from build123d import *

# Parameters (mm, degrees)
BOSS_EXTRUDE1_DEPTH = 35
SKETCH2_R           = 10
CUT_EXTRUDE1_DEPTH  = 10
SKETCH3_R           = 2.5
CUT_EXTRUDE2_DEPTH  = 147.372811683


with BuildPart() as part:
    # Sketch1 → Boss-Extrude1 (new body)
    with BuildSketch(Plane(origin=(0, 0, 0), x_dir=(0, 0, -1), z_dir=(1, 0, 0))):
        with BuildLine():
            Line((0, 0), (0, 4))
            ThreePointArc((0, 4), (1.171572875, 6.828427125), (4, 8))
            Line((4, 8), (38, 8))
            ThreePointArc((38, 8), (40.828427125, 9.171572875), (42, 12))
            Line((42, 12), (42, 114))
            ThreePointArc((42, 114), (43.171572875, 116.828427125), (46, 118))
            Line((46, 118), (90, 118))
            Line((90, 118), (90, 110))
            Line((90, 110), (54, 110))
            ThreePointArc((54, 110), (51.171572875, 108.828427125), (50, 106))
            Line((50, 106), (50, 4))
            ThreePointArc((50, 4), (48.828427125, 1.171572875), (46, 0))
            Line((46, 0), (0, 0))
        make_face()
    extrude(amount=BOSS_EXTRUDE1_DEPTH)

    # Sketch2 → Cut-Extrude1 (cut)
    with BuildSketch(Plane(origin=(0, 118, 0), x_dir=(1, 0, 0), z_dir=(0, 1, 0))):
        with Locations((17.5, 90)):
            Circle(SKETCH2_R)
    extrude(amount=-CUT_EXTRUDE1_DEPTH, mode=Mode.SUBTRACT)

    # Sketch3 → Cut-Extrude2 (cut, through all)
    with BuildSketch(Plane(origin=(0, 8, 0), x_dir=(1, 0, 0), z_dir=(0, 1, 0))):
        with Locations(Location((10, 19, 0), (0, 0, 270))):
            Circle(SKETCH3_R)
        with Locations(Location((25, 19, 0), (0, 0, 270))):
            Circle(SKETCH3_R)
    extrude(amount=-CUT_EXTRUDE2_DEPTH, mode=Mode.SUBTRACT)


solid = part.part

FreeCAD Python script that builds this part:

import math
import FreeCAD as App
import Part
import Sketcher

V = App.Vector

doc = App.newDocument("Part")
body = doc.addObject("PartDesign::Body", "Body")

# Sketch on YZ plane
sketch1 = doc.addObject("Sketcher::SketchObject", "Sketch")
body.addObject(sketch1)
sketch1.AttachmentSupport = (doc.YZ_Plane, [""])
sketch1.MapMode = "FlatFace"
sketch1.addGeometry([
    Part.LineSegment(V(4, 0, 0), V(0, 0, 0)),  # 0
    Part.LineSegment(V(0, 0, 0), V(0, -46, 0)),  # 1
    Part.ArcOfCircle(Part.Circle(V(4, -46, 0), V(0, 0, 1), 4), math.radians(180), math.radians(270)),  # 2
    Part.LineSegment(V(4, -50, 0), V(106, -50, 0)),  # 3
    Part.ArcOfCircle(Part.Circle(V(106, -54, 0), V(0, 0, 1), 4), math.radians(0), math.radians(90)),  # 4
    Part.LineSegment(V(110, -54, 0), V(110, -90, 0)),  # 5
    Part.LineSegment(V(110, -90, 0), V(118, -90, 0)),  # 6
    Part.LineSegment(V(118, -90, 0), V(118, -46, 0)),  # 7
    Part.ArcOfCircle(Part.Circle(V(114, -46, 0), V(0, 0, 1), 4), math.radians(0), math.radians(90)),  # 8
    Part.LineSegment(V(114, -42, 0), V(12, -42, 0)),  # 9
    Part.ArcOfCircle(Part.Circle(V(12, -38, 0), V(0, 0, 1), 4), math.radians(180), math.radians(270)),  # 10
    Part.LineSegment(V(8, -38, 0), V(8, -4, 0)),  # 11
    Part.ArcOfCircle(Part.Circle(V(4, -4, 0), V(0, 0, 1), 4), math.radians(0), math.radians(90)),  # 12
], False)
sketch1.addConstraint([
    Sketcher.Constraint("Coincident", 0, 2, 1, 1),
    Sketcher.Constraint("Tangent", 1, 2, 2, 1),
    Sketcher.Constraint("Tangent", 2, 2, 3, 1),
    Sketcher.Constraint("Tangent", 3, 2, 4, 2),
    Sketcher.Constraint("Tangent", 4, 1, 5, 1),
    Sketcher.Constraint("Coincident", 5, 2, 6, 1),
    Sketcher.Constraint("Coincident", 6, 2, 7, 1),
    Sketcher.Constraint("Tangent", 7, 2, 8, 1),
    Sketcher.Constraint("Tangent", 8, 2, 9, 1),
    Sketcher.Constraint("Tangent", 9, 2, 10, 2),
    Sketcher.Constraint("Tangent", 10, 1, 11, 1),
    Sketcher.Constraint("Tangent", 11, 2, 12, 1),
    Sketcher.Constraint("Tangent", 12, 2, 0, 1),
    Sketcher.Constraint("Horizontal", 0),
    Sketcher.Constraint("Vertical", 1),
    Sketcher.Constraint("Horizontal", 3),
    Sketcher.Constraint("Vertical", 5),
    Sketcher.Constraint("Horizontal", 6),
    Sketcher.Constraint("Vertical", 7),
    Sketcher.Constraint("Horizontal", 9),
    Sketcher.Constraint("Vertical", 11),
    Sketcher.Constraint("Coincident", 0, 2, -1, 1),
    Sketcher.Constraint("Equal", 2, 4),
    Sketcher.Constraint("Equal", 4, 8),
    Sketcher.Constraint("Equal", 8, 10),
    Sketcher.Constraint("Equal", 10, 12),
    Sketcher.Constraint("Horizontal", 2, 3, 8, 3),
    Sketcher.Constraint("Vertical", 2, 3, 12, 3),
    Sketcher.Constraint("Equal", 3, 9),
    Sketcher.Constraint("Radius", 2, 4.0),
    Sketcher.Constraint("DistanceX", 3, 1, 3, 2, 102.0),
    Sketcher.Constraint("DistanceY", 1, 2, 1, 1, 46.0),
    Sketcher.Constraint("DistanceY", 5, 2, 5, 1, 36.0),
])
pad1 = doc.addObject("PartDesign::Pad", "Pad")
body.addObject(pad1)
pad1.Profile = sketch1
pad1.Length = 35

# Sketch on XZ plane
sketch2 = doc.addObject("Sketcher::SketchObject", "Sketch001")
body.addObject(sketch2)
sketch2.AttachmentSupport = (doc.XZ_Plane, [""])
sketch2.MapMode = "FlatFace"
sketch2.AttachmentOffset = App.Placement(V(0, 0, -118), App.Rotation())
sketch2.addGeometry(Part.Circle(V(18, -90, 0), V(0, 0, 1), 10), False)
sketch2.addConstraint([
    Sketcher.Constraint("Diameter", 0, 20.0),
    Sketcher.Constraint("DistanceY", 0, 3, -1, 1, 90.0),
    Sketcher.Constraint("DistanceX", -1, 1, 0, 3, 17.5),
])
pocket1 = doc.addObject("PartDesign::Pocket", "Pocket")
body.addObject(pocket1)
pocket1.Profile = sketch2
pocket1.Length = 10
pocket1.Reversed = True

# Sketch on XZ plane
sketch3 = doc.addObject("Sketcher::SketchObject", "Sketch002")
body.addObject(sketch3)
sketch3.AttachmentSupport = (doc.XZ_Plane, [""])
sketch3.MapMode = "FlatFace"
sketch3.AttachmentOffset = App.Placement(V(0, 0, -8), App.Rotation())
sketch3.addGeometry([
    Part.Circle(V(10, -19, 0), V(0, 0, 1), 2.5),
    Part.Circle(V(25, -19, 0), V(0, 0, 1), 2.5),
], False)
sketch3.addConstraint([
    Sketcher.Constraint("Equal", 0, 1),
    Sketcher.Constraint("Horizontal", 0, 3, 1, 3),
    Sketcher.Constraint("Diameter", 0, 5.0),
    Sketcher.Constraint("DistanceX", -1, 1, 0, 3, 10.0),
    Sketcher.Constraint("DistanceY", 0, 3, -1, 1, 19.0),
    Sketcher.Constraint("DistanceX", -1, 1, 1, 3, 25.0),
])
pocket2 = doc.addObject("PartDesign::Pocket", "Pocket001")
body.addObject(pocket2)
pocket2.Profile = sketch3
pocket2.Type = "ThroughAll"
pocket2.Reversed = True

doc.recompute()
